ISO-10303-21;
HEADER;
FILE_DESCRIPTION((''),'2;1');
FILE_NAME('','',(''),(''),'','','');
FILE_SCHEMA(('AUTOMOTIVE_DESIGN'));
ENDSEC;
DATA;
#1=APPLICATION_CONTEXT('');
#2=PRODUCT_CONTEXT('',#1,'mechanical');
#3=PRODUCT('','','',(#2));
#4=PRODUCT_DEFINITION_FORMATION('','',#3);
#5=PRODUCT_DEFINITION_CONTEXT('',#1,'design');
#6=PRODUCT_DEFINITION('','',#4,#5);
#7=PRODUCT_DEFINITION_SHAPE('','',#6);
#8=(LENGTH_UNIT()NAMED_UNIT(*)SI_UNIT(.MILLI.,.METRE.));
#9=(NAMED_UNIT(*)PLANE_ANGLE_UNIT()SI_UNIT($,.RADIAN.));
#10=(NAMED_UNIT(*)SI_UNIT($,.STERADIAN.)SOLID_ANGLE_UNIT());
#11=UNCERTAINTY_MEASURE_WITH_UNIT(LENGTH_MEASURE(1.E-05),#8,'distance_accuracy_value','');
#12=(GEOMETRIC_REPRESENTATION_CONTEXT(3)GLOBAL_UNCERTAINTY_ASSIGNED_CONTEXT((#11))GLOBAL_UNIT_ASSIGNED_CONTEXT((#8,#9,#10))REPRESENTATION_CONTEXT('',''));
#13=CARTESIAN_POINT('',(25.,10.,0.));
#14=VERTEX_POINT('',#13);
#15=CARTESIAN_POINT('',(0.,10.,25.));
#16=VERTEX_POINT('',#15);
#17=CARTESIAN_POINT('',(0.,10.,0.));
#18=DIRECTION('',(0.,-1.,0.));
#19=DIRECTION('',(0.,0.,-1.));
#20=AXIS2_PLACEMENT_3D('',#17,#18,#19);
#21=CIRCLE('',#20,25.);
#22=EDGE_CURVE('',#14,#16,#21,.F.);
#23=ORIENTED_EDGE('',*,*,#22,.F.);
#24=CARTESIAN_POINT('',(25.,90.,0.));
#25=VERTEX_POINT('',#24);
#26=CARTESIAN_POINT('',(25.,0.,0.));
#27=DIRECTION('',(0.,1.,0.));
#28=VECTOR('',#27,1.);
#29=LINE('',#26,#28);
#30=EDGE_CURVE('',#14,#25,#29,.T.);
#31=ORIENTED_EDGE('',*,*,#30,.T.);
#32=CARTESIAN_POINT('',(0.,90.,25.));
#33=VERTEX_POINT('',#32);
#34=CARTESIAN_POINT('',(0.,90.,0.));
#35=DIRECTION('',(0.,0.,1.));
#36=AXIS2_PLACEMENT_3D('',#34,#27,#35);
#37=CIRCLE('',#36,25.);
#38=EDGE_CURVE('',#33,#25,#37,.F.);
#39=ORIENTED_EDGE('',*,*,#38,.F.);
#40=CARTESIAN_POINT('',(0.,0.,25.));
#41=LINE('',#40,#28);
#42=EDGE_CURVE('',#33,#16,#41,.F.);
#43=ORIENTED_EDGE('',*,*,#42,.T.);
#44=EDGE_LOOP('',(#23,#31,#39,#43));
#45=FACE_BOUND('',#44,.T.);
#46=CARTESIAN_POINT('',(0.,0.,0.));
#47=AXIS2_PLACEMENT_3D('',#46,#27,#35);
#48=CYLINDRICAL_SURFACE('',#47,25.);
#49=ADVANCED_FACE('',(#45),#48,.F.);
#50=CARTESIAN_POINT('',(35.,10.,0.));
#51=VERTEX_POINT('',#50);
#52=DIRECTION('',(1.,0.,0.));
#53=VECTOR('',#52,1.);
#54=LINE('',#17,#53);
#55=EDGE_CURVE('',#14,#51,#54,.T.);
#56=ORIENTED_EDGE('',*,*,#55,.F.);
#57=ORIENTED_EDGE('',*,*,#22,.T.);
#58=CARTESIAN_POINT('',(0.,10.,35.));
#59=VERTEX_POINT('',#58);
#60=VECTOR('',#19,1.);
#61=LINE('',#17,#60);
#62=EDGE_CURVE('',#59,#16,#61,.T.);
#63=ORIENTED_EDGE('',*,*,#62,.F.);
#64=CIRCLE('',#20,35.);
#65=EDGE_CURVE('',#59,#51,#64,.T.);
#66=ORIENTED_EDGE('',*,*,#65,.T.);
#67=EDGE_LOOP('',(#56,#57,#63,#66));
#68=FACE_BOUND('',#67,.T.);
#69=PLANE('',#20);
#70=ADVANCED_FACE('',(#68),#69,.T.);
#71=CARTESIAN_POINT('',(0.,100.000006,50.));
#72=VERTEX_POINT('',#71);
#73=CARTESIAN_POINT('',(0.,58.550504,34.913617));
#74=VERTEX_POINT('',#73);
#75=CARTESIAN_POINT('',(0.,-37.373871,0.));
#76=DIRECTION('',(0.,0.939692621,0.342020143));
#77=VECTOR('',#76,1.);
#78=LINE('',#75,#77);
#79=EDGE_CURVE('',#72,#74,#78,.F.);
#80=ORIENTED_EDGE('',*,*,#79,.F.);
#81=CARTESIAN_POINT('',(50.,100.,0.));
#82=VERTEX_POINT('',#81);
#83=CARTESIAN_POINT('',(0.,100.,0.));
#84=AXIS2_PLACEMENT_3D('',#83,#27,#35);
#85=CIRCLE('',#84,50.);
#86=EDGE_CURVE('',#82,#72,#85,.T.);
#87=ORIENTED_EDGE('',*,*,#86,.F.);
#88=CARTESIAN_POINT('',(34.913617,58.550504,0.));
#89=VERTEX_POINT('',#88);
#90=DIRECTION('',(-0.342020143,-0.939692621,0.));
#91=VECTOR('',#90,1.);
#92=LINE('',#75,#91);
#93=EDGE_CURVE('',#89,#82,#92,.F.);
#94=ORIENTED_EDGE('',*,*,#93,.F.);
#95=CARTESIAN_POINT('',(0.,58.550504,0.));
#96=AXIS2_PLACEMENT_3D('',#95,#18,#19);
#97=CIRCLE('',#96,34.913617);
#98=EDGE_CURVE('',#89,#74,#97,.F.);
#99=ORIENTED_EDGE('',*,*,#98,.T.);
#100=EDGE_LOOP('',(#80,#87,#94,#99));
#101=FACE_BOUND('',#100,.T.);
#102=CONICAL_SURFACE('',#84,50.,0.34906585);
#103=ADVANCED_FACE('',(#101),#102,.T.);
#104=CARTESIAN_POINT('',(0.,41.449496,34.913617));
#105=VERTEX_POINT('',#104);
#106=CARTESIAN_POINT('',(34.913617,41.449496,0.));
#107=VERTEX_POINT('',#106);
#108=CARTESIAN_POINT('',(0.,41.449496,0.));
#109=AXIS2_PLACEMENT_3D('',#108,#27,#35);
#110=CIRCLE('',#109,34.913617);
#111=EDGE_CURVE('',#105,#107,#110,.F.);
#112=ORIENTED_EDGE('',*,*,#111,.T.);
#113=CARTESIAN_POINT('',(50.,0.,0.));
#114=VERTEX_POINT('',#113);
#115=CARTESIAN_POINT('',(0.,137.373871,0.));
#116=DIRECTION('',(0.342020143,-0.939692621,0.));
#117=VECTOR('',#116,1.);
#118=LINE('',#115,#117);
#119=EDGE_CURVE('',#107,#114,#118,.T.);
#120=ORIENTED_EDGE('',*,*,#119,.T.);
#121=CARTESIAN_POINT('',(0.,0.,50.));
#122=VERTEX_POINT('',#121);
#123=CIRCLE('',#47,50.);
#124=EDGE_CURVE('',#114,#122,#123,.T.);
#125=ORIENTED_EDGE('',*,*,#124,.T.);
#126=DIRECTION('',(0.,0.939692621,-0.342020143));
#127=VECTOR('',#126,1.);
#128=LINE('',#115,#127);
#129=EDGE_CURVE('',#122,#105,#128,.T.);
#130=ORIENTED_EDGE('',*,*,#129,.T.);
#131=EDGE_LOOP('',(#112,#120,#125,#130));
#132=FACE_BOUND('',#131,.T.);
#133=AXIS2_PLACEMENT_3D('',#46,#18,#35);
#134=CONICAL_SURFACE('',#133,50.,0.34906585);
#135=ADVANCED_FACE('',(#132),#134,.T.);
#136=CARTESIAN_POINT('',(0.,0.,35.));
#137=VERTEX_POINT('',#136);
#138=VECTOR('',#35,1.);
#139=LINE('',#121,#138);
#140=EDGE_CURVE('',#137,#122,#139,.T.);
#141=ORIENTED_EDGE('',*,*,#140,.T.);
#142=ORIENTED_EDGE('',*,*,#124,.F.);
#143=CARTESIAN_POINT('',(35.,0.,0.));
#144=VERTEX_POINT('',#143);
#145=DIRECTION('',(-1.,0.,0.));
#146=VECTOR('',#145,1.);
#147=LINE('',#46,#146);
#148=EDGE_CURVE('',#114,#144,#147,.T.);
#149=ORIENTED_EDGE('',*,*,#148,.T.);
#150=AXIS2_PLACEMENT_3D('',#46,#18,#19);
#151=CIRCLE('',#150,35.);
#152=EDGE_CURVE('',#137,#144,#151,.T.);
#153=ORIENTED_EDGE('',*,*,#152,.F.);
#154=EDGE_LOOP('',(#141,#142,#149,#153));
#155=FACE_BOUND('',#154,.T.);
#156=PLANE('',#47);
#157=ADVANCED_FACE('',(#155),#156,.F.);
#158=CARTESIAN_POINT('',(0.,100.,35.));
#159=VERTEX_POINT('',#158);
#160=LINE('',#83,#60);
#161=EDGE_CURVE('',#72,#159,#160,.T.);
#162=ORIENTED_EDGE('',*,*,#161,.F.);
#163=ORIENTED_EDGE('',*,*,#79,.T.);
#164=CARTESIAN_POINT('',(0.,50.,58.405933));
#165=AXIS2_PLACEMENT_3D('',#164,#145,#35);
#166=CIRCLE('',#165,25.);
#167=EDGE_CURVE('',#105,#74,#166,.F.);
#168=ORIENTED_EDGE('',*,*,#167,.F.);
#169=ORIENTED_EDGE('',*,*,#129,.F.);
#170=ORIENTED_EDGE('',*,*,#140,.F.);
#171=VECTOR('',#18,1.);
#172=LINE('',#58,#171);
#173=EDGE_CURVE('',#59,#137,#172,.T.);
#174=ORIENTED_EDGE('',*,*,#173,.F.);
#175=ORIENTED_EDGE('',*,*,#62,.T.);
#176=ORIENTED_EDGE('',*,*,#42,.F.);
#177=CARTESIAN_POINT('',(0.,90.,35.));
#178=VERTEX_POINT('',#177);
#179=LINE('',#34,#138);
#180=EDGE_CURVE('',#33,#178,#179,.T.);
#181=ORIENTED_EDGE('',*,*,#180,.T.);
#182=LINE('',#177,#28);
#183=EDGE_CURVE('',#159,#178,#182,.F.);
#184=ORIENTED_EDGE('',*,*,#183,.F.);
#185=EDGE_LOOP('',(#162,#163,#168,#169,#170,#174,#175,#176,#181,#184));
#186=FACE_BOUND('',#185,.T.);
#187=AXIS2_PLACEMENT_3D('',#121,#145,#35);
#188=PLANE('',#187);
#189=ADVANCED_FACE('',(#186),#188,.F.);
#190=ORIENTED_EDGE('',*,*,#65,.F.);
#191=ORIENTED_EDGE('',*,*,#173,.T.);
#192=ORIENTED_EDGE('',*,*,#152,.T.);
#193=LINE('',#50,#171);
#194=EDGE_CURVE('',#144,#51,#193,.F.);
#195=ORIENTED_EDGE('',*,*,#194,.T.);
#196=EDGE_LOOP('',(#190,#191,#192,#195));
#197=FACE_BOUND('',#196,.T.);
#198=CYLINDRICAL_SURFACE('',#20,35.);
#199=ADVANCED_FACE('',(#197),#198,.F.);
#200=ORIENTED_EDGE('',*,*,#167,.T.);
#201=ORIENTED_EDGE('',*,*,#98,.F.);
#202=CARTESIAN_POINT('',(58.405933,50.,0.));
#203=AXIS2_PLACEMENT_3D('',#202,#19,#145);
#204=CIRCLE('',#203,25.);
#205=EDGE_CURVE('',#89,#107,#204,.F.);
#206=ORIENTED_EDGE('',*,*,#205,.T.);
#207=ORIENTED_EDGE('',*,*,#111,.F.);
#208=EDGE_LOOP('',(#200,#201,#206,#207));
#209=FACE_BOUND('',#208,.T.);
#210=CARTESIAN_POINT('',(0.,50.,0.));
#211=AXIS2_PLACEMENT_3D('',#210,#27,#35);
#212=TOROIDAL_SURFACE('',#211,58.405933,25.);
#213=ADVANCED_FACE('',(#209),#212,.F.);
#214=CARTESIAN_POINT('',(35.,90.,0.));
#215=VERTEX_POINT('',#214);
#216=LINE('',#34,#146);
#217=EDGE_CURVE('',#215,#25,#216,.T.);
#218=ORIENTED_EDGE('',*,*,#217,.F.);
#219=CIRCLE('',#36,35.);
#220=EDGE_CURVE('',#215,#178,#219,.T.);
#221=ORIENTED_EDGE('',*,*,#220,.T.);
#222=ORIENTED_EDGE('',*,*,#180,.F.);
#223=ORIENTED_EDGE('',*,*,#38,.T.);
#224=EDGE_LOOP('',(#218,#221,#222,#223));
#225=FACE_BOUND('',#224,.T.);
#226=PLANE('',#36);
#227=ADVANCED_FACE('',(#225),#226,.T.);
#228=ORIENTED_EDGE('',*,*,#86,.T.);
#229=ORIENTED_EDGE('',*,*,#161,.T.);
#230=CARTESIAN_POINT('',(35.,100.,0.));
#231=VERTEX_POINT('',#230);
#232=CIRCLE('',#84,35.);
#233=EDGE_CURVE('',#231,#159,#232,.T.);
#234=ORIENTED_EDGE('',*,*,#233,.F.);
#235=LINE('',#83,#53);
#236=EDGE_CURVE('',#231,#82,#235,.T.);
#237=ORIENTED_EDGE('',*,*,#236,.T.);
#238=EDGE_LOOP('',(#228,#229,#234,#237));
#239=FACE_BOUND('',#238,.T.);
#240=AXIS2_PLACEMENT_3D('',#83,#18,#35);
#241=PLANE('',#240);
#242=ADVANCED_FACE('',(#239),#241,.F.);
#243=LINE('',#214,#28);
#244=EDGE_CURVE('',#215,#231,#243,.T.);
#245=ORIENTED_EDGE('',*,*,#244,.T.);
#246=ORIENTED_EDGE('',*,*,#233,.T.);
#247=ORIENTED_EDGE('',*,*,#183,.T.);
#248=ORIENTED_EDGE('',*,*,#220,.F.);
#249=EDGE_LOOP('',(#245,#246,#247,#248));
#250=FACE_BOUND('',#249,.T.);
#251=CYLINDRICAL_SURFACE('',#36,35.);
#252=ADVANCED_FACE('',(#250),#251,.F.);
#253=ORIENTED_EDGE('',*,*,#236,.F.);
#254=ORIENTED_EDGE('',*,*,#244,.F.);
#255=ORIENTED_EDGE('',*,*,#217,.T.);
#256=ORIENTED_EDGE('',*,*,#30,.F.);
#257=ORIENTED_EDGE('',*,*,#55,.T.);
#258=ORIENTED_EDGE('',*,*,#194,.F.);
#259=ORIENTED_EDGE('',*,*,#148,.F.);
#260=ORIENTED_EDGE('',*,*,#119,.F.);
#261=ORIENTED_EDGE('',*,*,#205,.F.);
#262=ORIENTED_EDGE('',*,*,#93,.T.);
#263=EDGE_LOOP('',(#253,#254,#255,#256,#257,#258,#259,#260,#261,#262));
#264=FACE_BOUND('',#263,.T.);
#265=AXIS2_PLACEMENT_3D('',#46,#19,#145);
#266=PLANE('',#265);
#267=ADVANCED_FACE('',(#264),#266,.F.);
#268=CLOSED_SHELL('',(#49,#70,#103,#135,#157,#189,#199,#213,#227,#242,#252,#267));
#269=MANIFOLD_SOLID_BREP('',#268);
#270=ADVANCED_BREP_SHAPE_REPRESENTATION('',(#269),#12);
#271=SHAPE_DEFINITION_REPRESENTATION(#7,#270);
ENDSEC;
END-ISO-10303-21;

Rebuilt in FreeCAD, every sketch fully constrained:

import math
import FreeCAD as App
import Part
import Sketcher
Q = App.Units.Quantity


def edges_at(feature, points):
    """Names of the edges that pass closest to the given points."""
    edges = feature.Shape.Edges
    near = lambda p: min(range(len(edges)), key=lambda i: edges[i].distToShape(Part.Vertex(*p))[0])
    return sorted({f"Edge{near(p) + 1}" for p in points})

doc = App.newDocument("Part")
body = doc.addObject("PartDesign::Body", "Body")

# Sketch on XZ plane
sketch1 = body.newObject("Sketcher::SketchObject", "Sketch")
sketch1.AttachmentSupport = (doc.getObject("XZ_Plane"), [""])
sketch1.MapMode = "FlatFace"
sketch1.addGeometry(Part.Circle(App.Vector(0, 0, 0), App.Vector(0, 0, 1), 50), False)
sketch1.addConstraint(Sketcher.Constraint("Coincident", 0, 3, -1, 1))
sketch1.addConstraint(Sketcher.Constraint("Diameter", 0, Q("100 mm")))
pad1 = body.newObject("PartDesign::Pad", "Pad")
pad1.Profile = sketch1
pad1.Length = 50
pad1.Reversed = True
pad1.TaperAngle = -20
doc.recompute()

datumplane = body.newObject("PartDesign::Plane", "DatumPlane")
datumplane.AttachmentSupport = (doc.getObject("XZ_Plane"), [""])
datumplane.MapMode = "FlatFace"
datumplane.AttachmentOffset = App.Placement(App.Vector(0, 0, -50), App.Rotation())
mirrored = body.newObject("PartDesign::Mirrored", "Mirrored")
mirrored.Originals = [pad1]
mirrored.MirrorPlane = (datumplane, [""])
body.Tip = mirrored

# Sketch on XZ plane
sketch2 = body.newObject("Sketcher::SketchObject", "Sketch001")
sketch2.AttachmentSupport = (doc.getObject("XZ_Plane"), [""])
sketch2.MapMode = "FlatFace"
sketch2.AttachmentOffset = App.Placement(App.Vector(0, 0, -100), App.Rotation())
sketch2.addGeometry(Part.Circle(App.Vector(0, 0, 0), App.Vector(0, 0, 1), 25), False)
sketch2.addConstraint(Sketcher.Constraint("Coincident", 0, 3, -1, 1))
sketch2.addConstraint(Sketcher.Constraint("Diameter", 0, Q("50 mm")))
pocket1 = body.newObject("PartDesign::Pocket", "Pocket")
pocket1.Profile = sketch2
pocket1.Type = "ThroughAll"
pocket1.Midplane = True

# Sketch on XZ plane
sketch3 = body.newObject("Sketcher::SketchObject", "Sketch002")
sketch3.AttachmentSupport = (doc.getObject("XZ_Plane"), [""])
sketch3.MapMode = "FlatFace"
sketch3.AttachmentOffset = App.Placement(App.Vector(0, 0, -100), App.Rotation())
sketch3.addGeometry(Part.Circle(App.Vector(0, 0, 0), App.Vector(0, 0, 1), 35), False)
sketch3.addConstraint(Sketcher.Constraint("Coincident", 0, 3, -1, 1))
sketch3.addConstraint(Sketcher.Constraint("Diameter", 0, Q("70 mm")))
pocket2 = body.newObject("PartDesign::Pocket", "Pocket001")
pocket2.Profile = sketch3
pocket2.Length = 10
pocket2.Reversed = True

# Sketch on XZ plane
sketch4 = body.newObject("Sketcher::SketchObject", "Sketch003")
sketch4.AttachmentSupport = (doc.getObject("XZ_Plane"), [""])
sketch4.MapMode = "FlatFace"
sketch4.AttachmentOffset = App.Placement(App.Vector(0, 0, -10), App.Rotation())
sketch4.addGeometry(Part.Circle(App.Vector(0, 0, 0), App.Vector(0, 0, 1), 35), False)
sketch4.addConstraint(Sketcher.Constraint("Coincident", 0, 3, -1, 1))
sketch4.addConstraint(Sketcher.Constraint("Diameter", 0, Q("70 mm")))
pocket3 = body.newObject("PartDesign::Pocket", "Pocket002")
pocket3.Profile = sketch4
pocket3.Length = 10
pocket3.Reversed = True
doc.recompute()

fillet = body.newObject("PartDesign::Fillet", "Fillet")
fillet.Base = (pocket3, edges_at(pocket3, [(-31.801, 50, 0)]))
fillet.Radius = 25

# Sketch on XZ plane
sketch5 = body.newObject("Sketcher::SketchObject", "Sketch004")
sketch5.AttachmentSupport = (doc.getObject("XZ_Plane"), [""])
sketch5.MapMode = "FlatFace"
sketch5.AttachmentOffset = App.Placement(App.Vector(0, 0, -100), App.Rotation())
sketch5.addGeometry(Part.LineSegment(App.Vector(0, 0, 0), App.Vector(0, 50, 0)), False)
sketch5.addGeometry(Part.ArcOfCircle(Part.Circle(App.Vector(0, 0, 0), App.Vector(0, 0, 1), 50), math.radians(0), math.radians(90)), False)
sketch5.addGeometry(Part.LineSegment(App.Vector(50, 0, 0), App.Vector(0, 0, 0)), False)
sketch5.addConstraint(Sketcher.Constraint("Coincident", 0, 2, 1, 2))
sketch5.addConstraint(Sketcher.Constraint("Coincident", 1, 1, 2, 1))
sketch5.addConstraint(Sketcher.Constraint("Coincident", 2, 2, 0, 1))
sketch5.addConstraint(Sketcher.Constraint("Vertical", 0))
sketch5.addConstraint(Sketcher.Constraint("Horizontal", 2))
sketch5.addConstraint(Sketcher.Constraint("Coincident", 1, 3, -1, 1))
sketch5.addConstraint(Sketcher.Constraint("Coincident", 2, 2, -1, 1))
sketch5.addConstraint(Sketcher.Constraint("Radius", 1, Q("50 mm")))
pocket4 = body.newObject("PartDesign::Pocket", "Pocket003")
pocket4.Profile = sketch5
pocket4.Type = "ThroughAll"
pocket4.Midplane = True

doc.recompute()
